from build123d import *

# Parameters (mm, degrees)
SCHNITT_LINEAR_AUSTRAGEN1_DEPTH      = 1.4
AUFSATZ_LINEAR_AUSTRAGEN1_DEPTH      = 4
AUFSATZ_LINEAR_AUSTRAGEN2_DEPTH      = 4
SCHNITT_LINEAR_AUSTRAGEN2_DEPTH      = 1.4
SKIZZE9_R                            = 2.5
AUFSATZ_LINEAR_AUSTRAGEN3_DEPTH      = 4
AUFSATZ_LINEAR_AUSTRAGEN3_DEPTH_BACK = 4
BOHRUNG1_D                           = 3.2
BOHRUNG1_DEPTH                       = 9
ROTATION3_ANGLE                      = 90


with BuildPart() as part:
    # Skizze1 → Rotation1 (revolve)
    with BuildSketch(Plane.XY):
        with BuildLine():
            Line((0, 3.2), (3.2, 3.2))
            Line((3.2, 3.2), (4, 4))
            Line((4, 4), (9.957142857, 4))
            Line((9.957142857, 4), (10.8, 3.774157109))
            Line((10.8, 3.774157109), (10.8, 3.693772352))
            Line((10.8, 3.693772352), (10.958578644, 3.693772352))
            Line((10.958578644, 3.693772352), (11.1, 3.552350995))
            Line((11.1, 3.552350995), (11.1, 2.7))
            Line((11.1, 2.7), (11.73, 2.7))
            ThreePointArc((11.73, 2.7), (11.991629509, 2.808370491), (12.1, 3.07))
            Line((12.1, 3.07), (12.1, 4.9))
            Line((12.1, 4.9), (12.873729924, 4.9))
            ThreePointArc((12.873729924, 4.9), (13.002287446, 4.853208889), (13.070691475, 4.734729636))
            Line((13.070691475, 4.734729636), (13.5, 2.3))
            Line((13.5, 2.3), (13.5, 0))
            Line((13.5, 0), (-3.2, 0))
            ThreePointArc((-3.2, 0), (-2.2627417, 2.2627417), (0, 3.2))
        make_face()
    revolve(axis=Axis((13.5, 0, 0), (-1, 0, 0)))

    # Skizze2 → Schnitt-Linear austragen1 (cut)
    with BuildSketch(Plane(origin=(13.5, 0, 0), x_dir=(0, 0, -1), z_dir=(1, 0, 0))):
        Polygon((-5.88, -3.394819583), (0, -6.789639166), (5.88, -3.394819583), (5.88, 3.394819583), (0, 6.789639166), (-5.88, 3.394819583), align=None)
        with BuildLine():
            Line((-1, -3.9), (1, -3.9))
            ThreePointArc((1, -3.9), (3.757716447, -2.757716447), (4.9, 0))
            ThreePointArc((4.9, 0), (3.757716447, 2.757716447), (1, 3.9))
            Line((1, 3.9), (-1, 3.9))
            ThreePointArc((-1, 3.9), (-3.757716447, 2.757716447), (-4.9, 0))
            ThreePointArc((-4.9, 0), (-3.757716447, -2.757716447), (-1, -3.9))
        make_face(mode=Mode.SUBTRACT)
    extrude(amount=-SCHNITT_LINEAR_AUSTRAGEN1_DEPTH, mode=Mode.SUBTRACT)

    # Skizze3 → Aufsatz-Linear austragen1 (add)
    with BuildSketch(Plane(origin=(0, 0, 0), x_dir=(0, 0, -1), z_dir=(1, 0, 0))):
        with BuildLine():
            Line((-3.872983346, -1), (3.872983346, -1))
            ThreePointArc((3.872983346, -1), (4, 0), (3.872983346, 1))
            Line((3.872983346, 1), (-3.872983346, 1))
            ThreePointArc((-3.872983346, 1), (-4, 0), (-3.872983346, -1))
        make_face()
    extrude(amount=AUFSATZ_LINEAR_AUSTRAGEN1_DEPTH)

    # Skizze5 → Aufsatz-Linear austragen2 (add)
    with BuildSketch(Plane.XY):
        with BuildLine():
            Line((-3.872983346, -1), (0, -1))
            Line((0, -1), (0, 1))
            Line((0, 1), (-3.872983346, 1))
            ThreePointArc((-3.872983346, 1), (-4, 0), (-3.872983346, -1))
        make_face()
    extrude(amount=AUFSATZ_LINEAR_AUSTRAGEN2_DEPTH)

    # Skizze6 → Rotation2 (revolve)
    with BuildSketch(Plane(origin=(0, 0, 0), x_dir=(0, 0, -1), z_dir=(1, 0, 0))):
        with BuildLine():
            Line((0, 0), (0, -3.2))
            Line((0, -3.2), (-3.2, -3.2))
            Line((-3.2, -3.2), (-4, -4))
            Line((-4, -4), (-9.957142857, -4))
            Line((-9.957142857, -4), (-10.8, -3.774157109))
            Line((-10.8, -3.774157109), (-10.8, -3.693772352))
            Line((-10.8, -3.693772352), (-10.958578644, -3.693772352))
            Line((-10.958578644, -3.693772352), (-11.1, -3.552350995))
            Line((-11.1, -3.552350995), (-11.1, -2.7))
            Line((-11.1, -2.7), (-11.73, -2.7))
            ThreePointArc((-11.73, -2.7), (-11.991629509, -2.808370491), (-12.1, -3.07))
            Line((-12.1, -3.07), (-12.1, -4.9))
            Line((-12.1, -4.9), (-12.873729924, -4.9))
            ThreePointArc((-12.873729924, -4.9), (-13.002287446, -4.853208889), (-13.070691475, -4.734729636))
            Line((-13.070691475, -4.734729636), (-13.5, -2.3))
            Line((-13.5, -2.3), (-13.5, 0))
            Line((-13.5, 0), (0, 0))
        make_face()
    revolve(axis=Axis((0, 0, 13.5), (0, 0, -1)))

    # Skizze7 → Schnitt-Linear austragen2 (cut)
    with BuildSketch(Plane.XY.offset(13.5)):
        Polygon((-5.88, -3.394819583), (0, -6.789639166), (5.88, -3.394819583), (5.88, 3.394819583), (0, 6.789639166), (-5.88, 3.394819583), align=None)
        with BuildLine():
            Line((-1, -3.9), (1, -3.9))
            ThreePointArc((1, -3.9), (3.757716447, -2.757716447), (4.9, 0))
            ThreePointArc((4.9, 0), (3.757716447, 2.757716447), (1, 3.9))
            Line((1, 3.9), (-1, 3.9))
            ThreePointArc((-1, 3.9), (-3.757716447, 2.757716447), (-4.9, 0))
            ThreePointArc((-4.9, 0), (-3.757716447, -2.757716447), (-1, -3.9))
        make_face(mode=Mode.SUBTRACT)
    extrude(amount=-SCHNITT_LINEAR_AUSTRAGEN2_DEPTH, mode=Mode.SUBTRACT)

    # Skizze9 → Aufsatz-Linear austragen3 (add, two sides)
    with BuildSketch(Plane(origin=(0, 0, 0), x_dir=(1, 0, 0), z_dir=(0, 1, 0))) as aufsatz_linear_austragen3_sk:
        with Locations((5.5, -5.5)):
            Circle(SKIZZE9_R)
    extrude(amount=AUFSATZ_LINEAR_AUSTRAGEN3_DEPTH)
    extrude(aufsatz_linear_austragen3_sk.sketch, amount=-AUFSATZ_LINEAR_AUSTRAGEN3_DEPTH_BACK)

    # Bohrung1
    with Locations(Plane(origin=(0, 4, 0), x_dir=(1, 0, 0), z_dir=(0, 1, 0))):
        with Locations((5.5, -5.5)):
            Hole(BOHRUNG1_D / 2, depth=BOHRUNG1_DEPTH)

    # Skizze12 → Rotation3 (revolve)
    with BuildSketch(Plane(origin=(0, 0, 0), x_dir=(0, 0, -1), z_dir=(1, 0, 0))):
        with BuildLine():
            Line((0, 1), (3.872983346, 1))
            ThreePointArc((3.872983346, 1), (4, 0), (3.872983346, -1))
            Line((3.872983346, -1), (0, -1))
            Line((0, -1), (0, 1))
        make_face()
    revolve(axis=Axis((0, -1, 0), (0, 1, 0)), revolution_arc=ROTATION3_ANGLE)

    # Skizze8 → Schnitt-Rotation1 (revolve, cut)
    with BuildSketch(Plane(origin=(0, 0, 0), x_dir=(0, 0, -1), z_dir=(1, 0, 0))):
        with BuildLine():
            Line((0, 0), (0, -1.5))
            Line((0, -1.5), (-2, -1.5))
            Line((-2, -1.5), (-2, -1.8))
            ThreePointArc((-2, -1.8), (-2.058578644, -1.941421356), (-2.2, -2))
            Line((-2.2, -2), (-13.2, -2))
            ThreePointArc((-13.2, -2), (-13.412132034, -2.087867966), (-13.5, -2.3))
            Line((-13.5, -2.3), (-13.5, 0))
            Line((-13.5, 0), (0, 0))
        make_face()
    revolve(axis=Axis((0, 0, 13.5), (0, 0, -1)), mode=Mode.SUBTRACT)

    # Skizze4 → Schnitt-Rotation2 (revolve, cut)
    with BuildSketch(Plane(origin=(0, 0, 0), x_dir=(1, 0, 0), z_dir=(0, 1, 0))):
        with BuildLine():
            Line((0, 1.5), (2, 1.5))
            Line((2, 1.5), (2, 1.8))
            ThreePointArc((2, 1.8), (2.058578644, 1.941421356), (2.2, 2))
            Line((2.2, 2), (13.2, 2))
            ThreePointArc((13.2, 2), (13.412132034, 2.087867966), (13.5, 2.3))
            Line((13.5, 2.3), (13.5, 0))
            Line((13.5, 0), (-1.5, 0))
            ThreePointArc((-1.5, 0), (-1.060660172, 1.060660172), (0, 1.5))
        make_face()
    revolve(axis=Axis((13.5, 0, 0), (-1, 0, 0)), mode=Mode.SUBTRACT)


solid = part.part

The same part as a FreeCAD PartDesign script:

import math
import FreeCAD as App
import Part
import Sketcher
Q = App.Units.Quantity

doc = App.newDocument("Part")
body = doc.addObject("PartDesign::Body", "Body")

# Sketch on XY plane
sketch1 = body.newObject("Sketcher::SketchObject", "Sketch")
sketch1.AttachmentSupport = (doc.getObject("XY_Plane"), [""])
sketch1.MapMode = "FlatFace"
sketch1.addGeometry(Part.LineSegment(App.Vector(3.2, 3.2, 0), App.Vector(0, 3.2, 0)), False)
sketch1.addGeometry(Part.ArcOfCircle(Part.Circle(App.Vector(0, 0, 0), App.Vector(0, 0, 1), 3.2), math.radians(90), math.radians(180)), False)
sketch1.addGeometry(Part.LineSegment(App.Vector(-3.2, 0, 0), App.Vector(13.5, 0, 0)), False)
sketch1.addGeometry(Part.LineSegment(App.Vector(13.5, 0, 0), App.Vector(13.5, 2.3, 0)), False)
sketch1.addGeometry(Part.LineSegment(App.Vector(13.5, 2.3, 0), App.Vector(13.07, 4.73, 0)), False)
sketch1.addGeometry(Part.ArcOfCircle(Part.Circle(App.Vector(12.87, 4.7, 0), App.Vector(0, 0, 1), 0.2), math.radians(10), math.radians(90)), False)
sketch1.addGeometry(Part.LineSegment(App.Vector(12.87, 4.9, 0), App.Vector(12.1, 4.9, 0)), False)
sketch1.addGeometry(Part.LineSegment(App.Vector(12.1, 4.9, 0), App.Vector(12.1, 3.07, 0)), False)
sketch1.addGeometry(Part.ArcOfCircle(Part.Circle(App.Vector(11.73, 3.07, 0), App.Vector(0, 0, 1), 0.37), math.radians(-90), math.radians(0)), False)
sketch1.addGeometry(Part.LineSegment(App.Vector(11.73, 2.7, 0), App.Vector(11.1, 2.7, 0)), False)
sketch1.addGeometry(Part.LineSegment(App.Vector(11.1, 2.7, 0), App.Vector(11.1, 3.55, 0)), False)
sketch1.addGeometry(Part.LineSegment(App.Vector(11.1, 3.55, 0), App.Vector(10.96, 3.69, 0)), False)
sketch1.addGeometry(Part.LineSegment(App.Vector(10.96, 3.69, 0), App.Vector(10.8, 3.69, 0)), False)
sketch1.addGeometry(Part.LineSegment(App.Vector(10.8, 3.69, 0), App.Vector(10.8, 3.77, 0)), False)
sketch1.addGeometry(Part.LineSegment(App.Vector(10.8, 3.77, 0), App.Vector(9.96, 4, 0)), False)
sketch1.addGeometry(Part.LineSegment(App.Vector(9.96, 4, 0), App.Vector(4, 4, 0)), False)
sketch1.addGeometry(Part.LineSegment(App.Vector(4, 4, 0), App.Vector(3.2, 3.2, 0)), False)
sketch1.addConstraint(Sketcher.Constraint("Tangent", 0, 2, 1, 1))
sketch1.addConstraint(Sketcher.Constraint("Coincident", 1, 2, 2, 1))
sketch1.addConstraint(Sketcher.Constraint("Coincident", 2, 2, 3, 1))
sketch1.addConstraint(Sketcher.Constraint("Coincident", 3, 2, 4, 1))
sketch1.addConstraint(Sketcher.Constraint("Tangent", 4, 2, 5, 1))
sketch1.addConstraint(Sketcher.Constraint("Tangent", 5, 2, 6, 1))
sketch1.addConstraint(Sketcher.Constraint("Coincident", 6, 2, 7, 1))
sketch1.addConstraint(Sketcher.Constraint("Tangent", 7, 2, 8, 2))
sketch1.addConstraint(Sketcher.Constraint("Tangent", 8, 1, 9, 1))
sketch1.addConstraint(Sketcher.Constraint("Coincident", 9, 2, 10, 1))
sketch1.addConstraint(Sketcher.Constraint("Coincident", 10, 2, 11, 1))
sketch1.addConstraint(Sketcher.Constraint("Coincident", 11, 2, 12, 1))
sketch1.addConstraint(Sketcher.Constraint("Coincident", 12, 2, 13, 1))
sketch1.addConstraint(Sketcher.Constraint("Coincident", 13, 2, 14, 1))
sketch1.addConstraint(Sketcher.Constraint("Coincident", 14, 2, 15, 1))
sketch1.addConstraint(Sketcher.Constraint("Coincident", 15, 2, 16, 1))
sketch1.addConstraint(Sketcher.Constraint("Coincident", 16, 2, 0, 1))
sketch1.addConstraint(Sketcher.Constraint("Horizontal", 0))
sketch1.addConstraint(Sketcher.Constraint("Horizontal", 2))
sketch1.addConstraint(Sketcher.Constraint("Vertical", 3))
sketch1.addConstraint(Sketcher.Constraint("Horizontal", 6))
sketch1.addConstraint(Sketcher.Constraint("Vertical", 7))
sketch1.addConstraint(Sketcher.Constraint("Horizontal", 9))
sketch1.addConstraint(Sketcher.Constraint("Vertical", 10))
sketch1.addConstraint(Sketcher.Constraint("Horizontal", 12))
sketch1.addConstraint(Sketcher.Constraint("Vertical", 13))
sketch1.addConstraint(Sketcher.Constraint("Horizontal", 15))
sketch1.addConstraint(Sketcher.Constraint("Coincident", 1, 3, -1, 1))
sketch1.addConstraint(Sketcher.Constraint("PointOnObject", 1, 2, -1))
sketch1.addConstraint(Sketcher.Constraint("Perpendicular", 11, 16))
sketch1.addConstraint(Sketcher.Constraint("Radius", 1, 3.2))
sketch1.addConstraint(Sketcher.Constraint("Radius", 5, 0.2))
sketch1.addConstraint(Sketcher.Constraint("Angle", 4, Q("100 deg")))
sketch1.addConstraint(Sketcher.Constraint("Angle", 11, Q("135 deg")))
sketch1.addConstraint(Sketcher.Constraint("Angle", 14, Q("165 deg")))
sketch1.addConstraint(Sketcher.Constraint("Radius", 8, 0.37))
sketch1.addConstraint(Sketcher.Constraint("DistanceX", 0, 2, 0, 1, 3.2))
sketch1.addConstraint(Sketcher.Constraint("DistanceX", 2, 1, 2, 2, 16.7))
sketch1.addConstraint(Sketcher.Constraint("DistanceY", 3, 1, 3, 2, 2.3))
sketch1.addConstraint(Sketcher.Constraint("DistanceY", -1, 1, 14, 2, 4.0))
sketch1.addConstraint(Sketcher.Constraint("DistanceY", 8, 1, 5, 3, 2.0))
sketch1.addConstraint(Sketcher.Constraint("DistanceX", 9, 2, 7, 2, 1.0))
sketch1.addConstraint(Sketcher.Constraint("Distance", 11, 0.2))
sketch1.addConstraint(Sketcher.Constraint("DistanceY", -1, 1, 5, 3, 4.7))
sketch1.addConstraint(Sketcher.Constraint("DistanceX", -1, 1, 6, 2, 12.1))
sketch1.addConstraint(Sketcher.Constraint("DistanceX", -1, 1, 12, 2, 10.8))
sketch1.addConstraint(Sketcher.Constraint("DistanceY", 10, 1, 10, 2, 0.852351))
sketch1.addConstraint(Sketcher.Constraint("Distance", 14, 0.87259))
revolution = body.newObject("PartDesign::Revolution", "Revolution")
revolution.Profile = sketch1
revolution.ReferenceAxis = (sketch1, ["H_Axis"])
revolution.Angle = 360

# Sketch on YZ plane
sketch2 = body.newObject("Sketcher::SketchObject", "Sketch001")
sketch2.AttachmentSupport = (doc.getObject("YZ_Plane"), [""])
sketch2.MapMode = "FlatFace"
sketch2.AttachmentOffset = App.Placement(App.Vector(0, 0, 13.5), App.Rotation())
sketch2.addGeometry(Part.LineSegment(App.Vector(-3.4, 5.9, 0), App.Vector(-6.8, 0, 0)), False)
sketch2.addGeometry(Part.LineSegment(App.Vector(-6.8, 0, 0), App.Vector(-3.4, -5.9, 0)), False)
sketch2.addGeometry(Part.LineSegment(App.Vector(-3.4, -5.9, 0), App.Vector(3.4, -5.9, 0)), False)
sketch2.addGeometry(Part.LineSegment(App.Vector(3.4, -5.9, 0), App.Vector(6.8, 0, 0)), False)
sketch2.addGeometry(Part.LineSegment(App.Vector(6.8, 0, 0), App.Vector(3.4, 5.9, 0)), False)
sketch2.addGeometry(Part.LineSegment(App.Vector(3.4, 5.9, 0), App.Vector(-3.4, 5.9, 0)), False)
sketch2.addGeometry(Part.LineSegment(App.Vector(-3.9, -1, 0), App.Vector(-3.9, 1, 0)), False)
sketch2.addGeometry(Part.ArcOfCircle(Part.Circle(App.Vector(0, 1, 0), App.Vector(0, 0, 1), 3.9), math.radians(90), math.radians(180)), False)
sketch2.addGeometry(Part.ArcOfCircle(Part.Circle(App.Vector(0, 1, 0), App.Vector(0, 0, 1), 3.9), math.radians(0), math.radians(90)), False)
sketch2.addGeometry(Part.LineSegment(App.Vector(3.9, 1, 0), App.Vector(3.9, -1, 0)), False)
sketch2.addGeometry(Part.ArcOfCircle(Part.Circle(App.Vector(0, -1, 0), App.Vector(0, 0, 1), 3.9), math.radians(-90), math.radians(0)), False)
sketch2.addGeometry(Part.ArcOfCircle(Part.Circle(App.Vector(0, -1, 0), App.Vector(0, 0, 1), 3.9), math.radians(180), math.radians(270)), False)
sketch2.addConstraint(Sketcher.Constraint("Coincident", 0, 2, 1, 1))
sketch2.addConstraint(Sketcher.Constraint("Coincident", 1, 2, 2, 1))
sketch2.addConstraint(Sketcher.Constraint("Coincident", 2, 2, 3, 1))
sketch2.addConstraint(Sketcher.Constraint("Coincident", 3, 2, 4, 1))
sketch2.addConstraint(Sketcher.Constraint("Coincident", 4, 2, 5, 1))
sketch2.addConstraint(Sketcher.Constraint("Coincident", 5, 2, 0, 1))
sketch2.addConstraint(Sketcher.Constraint("Tangent", 6, 2, 7, 2))
sketch2.addConstraint(Sketcher.Constraint("Tangent", 7, 1, 8, 2))
sketch2.addConstraint(Sketcher.Constraint("Tangent", 8, 1, 9, 1))
sketch2.addConstraint(Sketcher.Constraint("Tangent", 9, 2, 10, 2))
sketch2.addConstraint(Sketcher.Constraint("Tangent", 10, 1, 11, 2))
sketch2.addConstraint(Sketcher.Constraint("Tangent", 11, 1, 6, 1))
sketch2.addConstraint(Sketcher.Constraint("Horizontal", 2))
sketch2.addConstraint(Sketcher.Constraint("Horizontal", 5))
sketch2.addConstraint(Sketcher.Constraint("Vertical", 6))
sketch2.addConstraint(Sketcher.Constraint("Vertical", 9))
sketch2.addConstraint(Sketcher.Constraint("Equal", 7, 8))
sketch2.addConstraint(Sketcher.Constraint("Equal", 8, 10))
sketch2.addConstraint(Sketcher.Constraint("Symmetric", 7, 3, 10, 3, -1, 1))
sketch2.addConstraint(Sketcher.Constraint("Symmetric", 0, 2, 3, 2, -1, 1))
sketch2.addConstraint(Sketcher.Constraint("Symmetric", 1, 2, 4, 2, -1, 1))
sketch2.addConstraint(Sketcher.Constraint("PointOnObject", 0, 2, -1))
sketch2.addConstraint(Sketcher.Constraint("PointOnObject", 7, 1, -2))
sketch2.addConstraint(Sketcher.Constraint("PointOnObject", 10, 1, -2))
sketch2.addConstraint(Sketcher.Constraint("Parallel", 0, 3))
sketch2.addConstraint(Sketcher.Constraint("Vertical", 2, 2, 4, 2))
sketch2.addConstraint(Sketcher.Constraint("Radius", 7, 3.9))
sketch2.addConstraint(Sketcher.Constraint("DistanceY", 6, 1, 6, 2, 2.0))
sketch2.addConstraint(Sketcher.Constraint("Angle", 0, Q("-120 deg")))
sketch2.addConstraint(Sketcher.Constraint("DistanceY", 1, 2, -1, 1, 5.88))
sketch2.addConstraint(Sketcher.Constraint("DistanceX", 2, 1, 2, 2, 6.789639))
pocket1 = body.newObject("PartDesign::Pocket", "Pocket")
pocket1.Profile = sketch2
pocket1.Length = 1.4

# Sketch on YZ plane
sketch3 = body.newObject("Sketcher::SketchObject", "Sketch002")
sketch3.AttachmentSupport = (doc.getObject("YZ_Plane"), [""])
sketch3.MapMode = "FlatFace"
sketch3.addGeometry(Part.LineSegment(App.Vector(-1, 3.9, 0), App.Vector(-1, -3.9, 0)), False)
sketch3.addGeometry(Part.ArcOfCircle(Part.Circle(App.Vector(0, 0, 0), App.Vector(0, 0, 1), 4), math.radians(-104), math.radians(-76)), False)
sketch3.addGeometry(Part.LineSegment(App.Vector(1, -3.9, 0), App.Vector(1, 3.9, 0)), False)
sketch3.addGeometry(Part.ArcOfCircle(Part.Circle(App.Vector(0, 0, 0), App.Vector(0, 0, 1), 4), math.radians(76), math.radians(104)), False)
sketch3.addConstraint(Sketcher.Constraint("Coincident", 0, 2, 1, 1))
sketch3.addConstraint(Sketcher.Constraint("Coincident", 1, 2, 2, 1))
sketch3.addConstraint(Sketcher.Constraint("Coincident", 2, 2, 3, 1))
sketch3.addConstraint(Sketcher.Constraint("Coincident", 3, 2, 0, 1))
sketch3.addConstraint(Sketcher.Constraint("Vertical", 0))
sketch3.addConstraint(Sketcher.Constraint("Vertical", 2))
sketch3.addConstraint(Sketcher.Constraint("Coincident", 1, 3, -1, 1))
sketch3.addConstraint(Sketcher.Constraint("Coincident", 3, 3, -1, 1))
sketch3.addConstraint(Sketcher.Constraint("Equal", 1, 3))
sketch3.addConstraint(Sketcher.Constraint("Horizontal", 0, 2, 1, 2))
sketch3.addConstraint(Sketcher.Constraint("Radius", 1, 4.0))
sketch3.addConstraint(Sketcher.Constraint("DistanceX", 0, 2, -1, 1, 1.0))
pad1 = body.newObject("PartDesign::Pad", "Pad")
pad1.Profile = sketch3
pad1.Length = 4

# Sketch on XY plane
sketch4 = body.newObject("Sketcher::SketchObject", "Sketch003")
sketch4.AttachmentSupport = (doc.getObject("XY_Plane"), [""])
sketch4.MapMode = "FlatFace"
sketch4.addGeometry(Part.LineSegment(App.Vector(-3.9, -1, 0), App.Vector(0, -1, 0)), False)
sketch4.addGeometry(Part.LineSegment(App.Vector(0, -1, 0), App.Vector(0, 1, 0)), False)
sketch4.addGeometry(Part.LineSegment(App.Vector(0, 1, 0), App.Vector(-3.9, 1, 0)), False)
sketch4.addGeometry(Part.ArcOfCircle(Part.Circle(App.Vector(0, 0, 0), App.Vector(0, 0, 1), 4), math.radians(166), math.radians(194)), False)
sketch4.addConstraint(Sketcher.Constraint("Coincident", 0, 2, 1, 1))
sketch4.addConstraint(Sketcher.Constraint("Coincident", 1, 2, 2, 1))
sketch4.addConstraint(Sketcher.Constraint("Coincident", 2, 2, 3, 1))
sketch4.addConstraint(Sketcher.Constraint("Coincident", 3, 2, 0, 1))
sketch4.addConstraint(Sketcher.Constraint("Horizontal", 0))
sketch4.addConstraint(Sketcher.Constraint("Vertical", 1))
sketch4.addConstraint(Sketcher.Constraint("Horizontal", 2))
sketch4.addConstraint(Sketcher.Constraint("Coincident", 3, 3, -1, 1))
sketch4.addConstraint(Sketcher.Constraint("Symmetric", 0, 2, 1, 2, -1, 1))
sketch4.addConstraint(Sketcher.Constraint("Radius", 3, 4.0))
sketch4.addConstraint(Sketcher.Constraint("DistanceY", 1, 1, 1, 2, 2.0))
pad2 = body.newObject("PartDesign::Pad", "Pad001")
pad2.Profile = sketch4
pad2.Length = 4

# Sketch on YZ plane
sketch5 = body.newObject("Sketcher::SketchObject", "Sketch004")
sketch5.AttachmentSupport = (doc.getObject("YZ_Plane"), [""])
sketch5.MapMode = "FlatFace"
sketch5.addGeometry(Part.LineSegment(App.Vector(-3.2, 0, 0), App.Vector(0, 0, 0)), False)
sketch5.addGeometry(Part.LineSegment(App.Vector(0, 0, 0), App.Vector(0, 13.5, 0)), False)
sketch5.addGeometry(Part.LineSegment(App.Vector(0, 13.5, 0), App.Vector(-2.3, 13.5, 0)), False)
sketch5.addGeometry(Part.LineSegment(App.Vector(-2.3, 13.5, 0), App.Vector(-4.73, 13.07, 0)), False)
sketch5.addGeometry(Part.ArcOfCircle(Part.Circle(App.Vector(-4.7, 12.87, 0), App.Vector(0, 0, 1), 0.2), math.radians(100), math.radians(180)), False)
sketch5.addGeometry(Part.LineSegment(App.Vector(-4.9, 12.87, 0), App.Vector(-4.9, 12.1, 0)), False)
sketch5.addGeometry(Part.LineSegment(App.Vector(-4.9, 12.1, 0), App.Vector(-3.07, 12.1, 0)), False)
sketch5.addGeometry(Part.ArcOfCircle(Part.Circle(App.Vector(-3.07, 11.73, 0), App.Vector(0, 0, 1), 0.37), math.radians(0), math.radians(90)), False)
sketch5.addGeometry(Part.LineSegment(App.Vector(-2.7, 11.73, 0), App.Vector(-2.7, 11.1, 0)), False)
sketch5.addGeometry(Part.LineSegment(App.Vector(-2.7, 11.1, 0), App.Vector(-3.55, 11.1, 0)), False)
sketch5.addGeometry(Part.LineSegment(App.Vector(-3.55, 11.1, 0), App.Vector(-3.69, 10.96, 0)), False)
sketch5.addGeometry(Part.LineSegment(App.Vector(-3.69, 10.96, 0), App.Vector(-3.69, 10.8, 0)), False)
sketch5.addGeometry(Part.LineSegment(App.Vector(-3.69, 10.8, 0), App.Vector(-3.77, 10.8, 0)), False)
sketch5.addGeometry(Part.LineSegment(App.Vector(-3.77, 10.8, 0), App.Vector(-4, 9.96, 0)), False)
sketch5.addGeometry(Part.LineSegment(App.Vector(-4, 9.96, 0), App.Vector(-4, 4, 0)), False)
sketch5.addGeometry(Part.LineSegment(App.Vector(-4, 4, 0), App.Vector(-3.2, 3.2, 0)), False)
sketch5.addGeometry(Part.LineSegment(App.Vector(-3.2, 3.2, 0), App.Vector(-3.2, 0, 0)), False)
sketch5.addConstraint(Sketcher.Constraint("Coincident", 0, 2, 1, 1))
sketch5.addConstraint(Sketcher.Constraint("Coincident", 1, 2, 2, 1))
sketch5.addConstraint(Sketcher.Constraint("Coincident", 2, 2, 3, 1))
sketch5.addConstraint(Sketcher.Constraint("Tangent", 3, 2, 4, 1))
sketch5.addConstraint(Sketcher.Constraint("Tangent", 4, 2, 5, 1))
sketch5.addConstraint(Sketcher.Constraint("Coincident", 5, 2, 6, 1))
sketch5.addConstraint(Sketcher.Constraint("Tangent", 6, 2, 7, 2))
sketch5.addConstraint(Sketcher.Constraint("Tangent", 7, 1, 8, 1))
sketch5.addConstraint(Sketcher.Constraint("Coincident", 8, 2, 9, 1))
sketch5.addConstraint(Sketcher.Constraint("Coincident", 9, 2, 10, 1))
sketch5.addConstraint(Sketcher.Constraint("Coincident", 10, 2, 11, 1))
sketch5.addConstraint(Sketcher.Constraint("Coincident", 11, 2, 12, 1))
sketch5.addConstraint(Sketcher.Constraint("Coincident", 12, 2, 13, 1))
sketch5.addConstraint(Sketcher.Constraint("Coincident", 13, 2, 14, 1))
sketch5.addConstraint(Sketcher.Constraint("Coincident", 14, 2, 15, 1))
sketch5.addConstraint(Sketcher.Constraint("Coincident", 15, 2, 16, 1))
sketch5.addConstraint(Sketcher.Constraint("Coincident", 16, 2, 0, 1))
sketch5.addConstraint(Sketcher.Constraint("Horizontal", 0))
sketch5.addConstraint(Sketcher.Constraint("Vertical", 1))
sketch5.addConstraint(Sketcher.Constraint("Horizontal", 2))
sketch5.addConstraint(Sketcher.Constraint("Vertical", 5))
sketch5.addConstraint(Sketcher.Constraint("Horizontal", 6))
sketch5.addConstraint(Sketcher.Constraint("Vertical", 8))
sketch5.addConstraint(Sketcher.Constraint("Horizontal", 9))
sketch5.addConstraint(Sketcher.Constraint("Vertical", 11))
sketch5.addConstraint(Sketcher.Constraint("Horizontal", 12))
sketch5.addConstraint(Sketcher.Constraint("Vertical", 14))
sketch5.addConstraint(Sketcher.Constraint("Vertical", 16))
sketch5.addConstraint(Sketcher.Constraint("Coincident", 0, 2, -1, 1))
sketch5.addConstraint(Sketcher.Constraint("Perpendicular", 10, 15))
sketch5.addConstraint(Sketcher.Constraint("Equal", 0, 16))
sketch5.addConstraint(Sketcher.Constraint("Radius", 4, 0.2))
sketch5.addConstraint(Sketcher.Constraint("Angle", 3, Q("-170 deg")))
sketch5.addConstraint(Sketcher.Constraint("Angle", 10, Q("-135 deg")))
sketch5.addConstraint(Sketcher.Constraint("Angle", 13, Q("-105 deg")))
sketch5.addConstraint(Sketcher.Constraint("Radius", 7, 0.37))
sketch5.addConstraint(Sketcher.Constraint("DistanceX", 0, 1, 0, 2, 3.2))
sketch5.addConstraint(Sketcher.Constraint("DistanceX", 2, 2, 2, 1, 2.3))
sketch5.addConstraint(Sketcher.Constraint("DistanceY", 1, 1, 1, 2, 13.5))
sketch5.addConstraint(Sketcher.Constraint("DistanceX", 13, 2, -1, 1, 4.0))
sketch5.addConstraint(Sketcher.Constraint("DistanceX", 4, 3, 7, 1, 2.0))
sketch5.addConstraint(Sketcher.Constraint("DistanceY", 8, 2, 6, 2, 1.0))
sketch5.addConstraint(Sketcher.Constraint("Distance", 10, 0.2))
sketch5.addConstraint(Sketcher.Constraint("DistanceX", 4, 3, -1, 1, 4.7))
sketch5.addConstraint(Sketcher.Constraint("DistanceY", -1, 1, 5, 2, 12.1))
sketch5.addConstraint(Sketcher.Constraint("DistanceY", -1, 1, 11, 2, 10.8))
sketch5.addConstraint(Sketcher.Constraint("DistanceX", 9, 2, 9, 1, 0.852351))
sketch5.addConstraint(Sketcher.Constraint("Distance", 13, 0.87259))
revolution2 = body.newObject("PartDesign::Revolution", "Revolution001")
revolution2.Profile = sketch5
revolution2.ReferenceAxis = (sketch5, ["V_Axis"])
revolution2.Angle = 360

# Sketch on XY plane
sketch6 = body.newObject("Sketcher::SketchObject", "Sketch005")
sketch6.AttachmentSupport = (doc.getObject("XY_Plane"), [""])
sketch6.MapMode = "FlatFace"
sketch6.AttachmentOffset = App.Placement(App.Vector(0, 0, 13.5), App.Rotation())
sketch6.addGeometry(Part.LineSegment(App.Vector(-5.9, -3.4, 0), App.Vector(0, -6.8, 0)), False)
sketch6.addGeometry(Part.LineSegment(App.Vector(0, -6.8, 0), App.Vector(5.9, -3.4, 0)), False)
sketch6.addGeometry(Part.LineSegment(App.Vector(5.9, -3.4, 0), App.Vector(5.9, 3.4, 0)), False)
sketch6.addGeometry(Part.LineSegment(App.Vector(5.9, 3.4, 0), App.Vector(0, 6.8, 0)), False)
sketch6.addGeometry(Part.LineSegment(App.Vector(0, 6.8, 0), App.Vector(-5.9, 3.4, 0)), False)
sketch6.addGeometry(Part.LineSegment(App.Vector(-5.9, 3.4, 0), App.Vector(-5.9, -3.4, 0)), False)
sketch6.addGeometry(Part.LineSegment(App.Vector(1, -3.9, 0), App.Vector(-1, -3.9, 0)), False)
sketch6.addGeometry(Part.ArcOfCircle(Part.Circle(App.Vector(-1, 0, 0), App.Vector(0, 0, 1), 3.9), math.radians(180), math.radians(270)), False)
sketch6.addGeometry(Part.ArcOfCircle(Part.Circle(App.Vector(-1, 0, 0), App.Vector(0, 0, 1), 3.9), math.radians(90), math.radians(180)), False)
sketch6.addGeometry(Part.LineSegment(App.Vector(-1, 3.9, 0), App.Vector(1, 3.9, 0)), False)
sketch6.addGeometry(Part.ArcOfCircle(Part.Circle(App.Vector(1, 0, 0), App.Vector(0, 0, 1), 3.9), math.radians(0), math.radians(90)), False)
sketch6.addGeometry(Part.ArcOfCircle(Part.Circle(App.Vector(1, 0, 0), App.Vector(0, 0, 1), 3.9), math.radians(-90), math.radians(0)), False)
sketch6.addConstraint(Sketcher.Constraint("Coincident", 0, 2, 1, 1))
sketch6.addConstraint(Sketcher.Constraint("Coincident", 1, 2, 2, 1))
sketch6.addConstraint(Sketcher.Constraint("Coincident", 2, 2, 3, 1))
sketch6.addConstraint(Sketcher.Constraint("Coincident", 3, 2, 4, 1))
sketch6.addConstraint(Sketcher.Constraint("Coincident", 4, 2, 5, 1))
sketch6.addConstraint(Sketcher.Constraint("Coincident", 5, 2, 0, 1))
sketch6.addConstraint(Sketcher.Constraint("Tangent", 6, 2, 7, 2))
sketch6.addConstraint(Sketcher.Constraint("Tangent", 7, 1, 8, 2))
sketch6.addConstraint(Sketcher.Constraint("Tangent", 8, 1, 9, 1))
sketch6.addConstraint(Sketcher.Constraint("Tangent", 9, 2, 10, 2))
sketch6.addConstraint(Sketcher.Constraint("Tangent", 10, 1, 11, 2))
sketch6.addConstraint(Sketcher.Constraint("Tangent", 11, 1, 6, 1))
sketch6.addConstraint(Sketcher.Constraint("Vertical", 2))
sketch6.addConstraint(Sketcher.Constraint("Vertical", 5))
sketch6.addConstraint(Sketcher.Constraint("Horizontal", 6))
sketch6.addConstraint(Sketcher.Constraint("Horizontal", 9))
sketch6.addConstraint(Sketcher.Constraint("Equal", 7, 8))
sketch6.addConstraint(Sketcher.Constraint("Equal", 8, 10))
sketch6.addConstraint(Sketcher.Constraint("Symmetric", 7, 3, 10, 3, -1, 1))
sketch6.addConstraint(Sketcher.Constraint("Symmetric", 0, 2, 3, 2, -1, 1))
sketch6.addConstraint(Sketcher.Constraint("Symmetric", 1, 2, 4, 2, -1, 1))
sketch6.addConstraint(Sketcher.Constraint("PointOnObject", 0, 2, -2))
sketch6.addConstraint(Sketcher.Constraint("PointOnObject", 7, 1, -1))
sketch6.addConstraint(Sketcher.Constraint("PointOnObject", 10, 1, -1))
sketch6.addConstraint(Sketcher.Constraint("Parallel", 0, 3))
sketch6.addConstraint(Sketcher.Constraint("Horizontal", 2, 2, 4, 2))
sketch6.addConstraint(Sketcher.Constraint("Radius", 7, 3.9))
sketch6.addConstraint(Sketcher.Constraint("DistanceX", 6, 2, 6, 1, 2.0))
sketch6.addConstraint(Sketcher.Constraint("Angle", 0, Q("-30 deg")))
sketch6.addConstraint(Sketcher.Constraint("DistanceX", -1, 1, 1, 2, 5.88))
sketch6.addConstraint(Sketcher.Constraint("DistanceY", 2, 1, 2, 2, 6.789639))
pocket2 = body.newObject("PartDesign::Pocket", "Pocket001")
pocket2.Profile = sketch6
pocket2.Length = 1.4

# Sketch on XZ plane
sketch7 = body.newObject("Sketcher::SketchObject", "Sketch006")
sketch7.AttachmentSupport = (doc.getObject("XZ_Plane"), [""])
sketch7.MapMode = "FlatFace"
sketch7.addGeometry(Part.Circle(App.Vector(5.5, 5.5, 0), App.Vector(0, 0, 1), 2.5), False)
sketch7.addConstraint(Sketcher.Constraint("Diameter", 0, 5.0))
sketch7.addConstraint(Sketcher.Constraint("DistanceX", -1, 1, 0, 3, 5.5))
sketch7.addConstraint(Sketcher.Constraint("DistanceY", -1, 1, 0, 3, 5.5))
pad3 = body.newObject("PartDesign::Pad", "Pad002")
pad3.Profile = sketch7
pad3.Type = "TwoLengths"
pad3.Length = 4
pad3.Length2 = 4
pad3.Reversed = True

# Sketch on XZ plane
sketch8 = body.newObject("Sketcher::SketchObject", "Sketch007")
sketch8.AttachmentSupport = (doc.getObject("XZ_Plane"), [""])
sketch8.MapMode = "FlatFace"
sketch8.AttachmentOffset = App.Placement(App.Vector(0, 0, -4), App.Rotation())
sketch8.addGeometry(Part.Circle(App.Vector(5.5, 5.5, 0), App.Vector(0, 0, 1), 1.6), False)
sketch8.addConstraint(Sketcher.Constraint("Diameter", 0, 3.2))
sketch8.addConstraint(Sketcher.Constraint("DistanceX", -1, 1, 0, 3, 5.5))
sketch8.addConstraint(Sketcher.Constraint("DistanceY", -1, 1, 0, 3, 5.5))
doc.recompute()
hole = body.newObject("PartDesign::Hole", "Hole")
hole.Profile = sketch8
hole.ThreadType = "None"
hole.Diameter = 3.2
hole.DepthType = "Dimension"
hole.Depth = 9
hole.DrillPoint = "Flat"
hole.Reversed = True

# Sketch on YZ plane
sketch9 = body.newObject("Sketcher::SketchObject", "Sketch008")
sketch9.AttachmentSupport = (doc.getObject("YZ_Plane"), [""])
sketch9.MapMode = "FlatFace"
sketch9.addGeometry(Part.LineSegment(App.Vector(1, -3.9, 0), App.Vector(1, 0, 0)), False)
sketch9.addGeometry(Part.LineSegment(App.Vector(1, 0, 0), App.Vector(-1, 0, 0)), False)
sketch9.addGeometry(Part.LineSegment(App.Vector(-1, 0, 0), App.Vector(-1, -3.9, 0)), False)
sketch9.addGeometry(Part.ArcOfCircle(Part.Circle(App.Vector(0, 0, 0), App.Vector(0, 0, 1), 4), math.radians(-104), math.radians(-76)), False)
sketch9.addConstraint(Sketcher.Constraint("Coincident", 0, 2, 1, 1))
sketch9.addConstraint(Sketcher.Constraint("Coincident", 1, 2, 2, 1))
sketch9.addConstraint(Sketcher.Constraint("Coincident", 2, 2, 3, 1))
sketch9.addConstraint(Sketcher.Constraint("Coincident", 3, 2, 0, 1))
sketch9.addConstraint(Sketcher.Constraint("Vertical", 0))
sketch9.addConstraint(Sketcher.Constraint("Horizontal", 1))
sketch9.addConstraint(Sketcher.Constraint("Vertical", 2))
sketch9.addConstraint(Sketcher.Constraint("Coincident", 3, 3, -1, 1))
sketch9.addConstraint(Sketcher.Constraint("Symmetric", 0, 2, 1, 2, -1, 1))
sketch9.addConstraint(Sketcher.Constraint("Radius", 3, 4.0))
sketch9.addConstraint(Sketcher.Constraint("DistanceX", 1, 2, 1, 1, 2.0))
revolution3 = body.newObject("PartDesign::Revolution", "Revolution002")
revolution3.Profile = sketch9
revolution3.ReferenceAxis = (sketch9, ["H_Axis"])
revolution3.Angle = 90

# Sketch on YZ plane
sketch10 = body.newObject("Sketcher::SketchObject", "Sketch009")
sketch10.AttachmentSupport = (doc.getObject("YZ_Plane"), [""])
sketch10.MapMode = "FlatFace"
sketch10.addGeometry(Part.LineSegment(App.Vector(-1.5, 0, 0), App.Vector(0, 0, 0)), False)
sketch10.addGeometry(Part.LineSegment(App.Vector(0, 0, 0), App.Vector(0, 13.5, 0)), False)
sketch10.addGeometry(Part.LineSegment(App.Vector(0, 13.5, 0), App.Vector(-2.3, 13.5, 0)), False)
sketch10.addGeometry(Part.ArcOfCircle(Part.Circle(App.Vector(-2.3, 13.2, 0), App.Vector(0, 0, 1), 0.3), math.radians(0), math.radians(90)), False)
sketch10.addGeometry(Part.LineSegment(App.Vector(-2, 13.2, 0), App.Vector(-2, 2.2, 0)), False)
sketch10.addGeometry(Part.ArcOfCircle(Part.Circle(App.Vector(-1.8, 2.2, 0), App.Vector(0, 0, 1), 0.2), math.radians(-180), math.radians(-90)), False)
sketch10.addGeometry(Part.LineSegment(App.Vector(-1.8, 2, 0), App.Vector(-1.5, 2, 0)), False)
sketch10.addGeometry(Part.LineSegment(App.Vector(-1.5, 2, 0), App.Vector(-1.5, 0, 0)), False)
sketch10.addConstraint(Sketcher.Constraint("Coincident", 0, 2, 1, 1))
sketch10.addConstraint(Sketcher.Constraint("Coincident", 1, 2, 2, 1))
sketch10.addConstraint(Sketcher.Constraint("Tangent", 2, 2, 3, 2))
sketch10.addConstraint(Sketcher.Constraint("Tangent", 3, 1, 4, 1))
sketch10.addConstraint(Sketcher.Constraint("Tangent", 4, 2, 5, 1))
sketch10.addConstraint(Sketcher.Constraint("Tangent", 5, 2, 6, 1))
sketch10.addConstraint(Sketcher.Constraint("Coincident", 6, 2, 7, 1))
sketch10.addConstraint(Sketcher.Constraint("Coincident", 7, 2, 0, 1))
sketch10.addConstraint(Sketcher.Constraint("Horizontal", 0))
sketch10.addConstraint(Sketcher.Constraint("Vertical", 1))
sketch10.addConstraint(Sketcher.Constraint("Horizontal", 2))
sketch10.addConstraint(Sketcher.Constraint("Vertical", 4))
sketch10.addConstraint(Sketcher.Constraint("Horizontal", 6))
sketch10.addConstraint(Sketcher.Constraint("Vertical", 7))
sketch10.addConstraint(Sketcher.Constraint("Coincident", 0, 2, -1, 1))
sketch10.addConstraint(Sketcher.Constraint("Radius", 3, 0.3))
sketch10.addConstraint(Sketcher.Constraint("Radius", 5, 0.2))
sketch10.addConstraint(Sketcher.Constraint("DistanceY", 4, 2, 4, 1, 11.0))
sketch10.addConstraint(Sketcher.Constraint("DistanceY", 7, 2, 7, 1, 2.0))
sketch10.addConstraint(Sketcher.Constraint("DistanceX", 0, 1, 0, 2, 1.5))
sketch10.addConstraint(Sketcher.Constraint("DistanceX", 2, 2, 2, 1, 2.3))
groove = body.newObject("PartDesign::Groove", "Groove")
groove.Profile = sketch10
groove.ReferenceAxis = (sketch10, ["V_Axis"])
groove.Angle = 360

# Sketch on XZ plane
sketch11 = body.newObject("Sketcher::SketchObject", "Sketch010")
sketch11.AttachmentSupport = (doc.getObject("XZ_Plane"), [""])
sketch11.MapMode = "FlatFace"
sketch11.addGeometry(Part.LineSegment(App.Vector(2, -1.5, 0), App.Vector(0, -1.5, 0)), False)
sketch11.addGeometry(Part.ArcOfCircle(Part.Circle(App.Vector(0, 0, 0), App.Vector(0, 0, 1), 1.5), math.radians(180), math.radians(270)), False)
sketch11.addGeometry(Part.LineSegment(App.Vector(-1.5, 0, 0), App.Vector(13.5, 0, 0)), False)
sketch11.addGeometry(Part.LineSegment(App.Vector(13.5, 0, 0), App.Vector(13.5, -2.3, 0)), False)
sketch11.addGeometry(Part.ArcOfCircle(Part.Circle(App.Vector(13.2, -2.3, 0), App.Vector(0, 0, 1), 0.3), math.radians(0), math.radians(90)), False)
sketch11.addGeometry(Part.LineSegment(App.Vector(13.2, -2, 0), App.Vector(2.2, -2, 0)), False)
sketch11.addGeometry(Part.ArcOfCircle(Part.Circle(App.Vector(2.2, -1.8, 0), App.Vector(0, 0, 1), 0.2), math.radians(-180), math.radians(-90)), False)
sketch11.addGeometry(Part.LineSegment(App.Vector(2, -1.8, 0), App.Vector(2, -1.5, 0)), False)
sketch11.addConstraint(Sketcher.Constraint("Tangent", 0, 2, 1, 2))
sketch11.addConstraint(Sketcher.Constraint("Coincident", 1, 1, 2, 1))
sketch11.addConstraint(Sketcher.Constraint("Coincident", 2, 2, 3, 1))
sketch11.addConstraint(Sketcher.Constraint("Tangent", 3, 2, 4, 1))
sketch11.addConstraint(Sketcher.Constraint("Tangent", 4, 2, 5, 1))
sketch11.addConstraint(Sketcher.Constraint("Tangent", 5, 2, 6, 2))
sketch11.addConstraint(Sketcher.Constraint("Tangent", 6, 1, 7, 1))
sketch11.addConstraint(Sketcher.Constraint("Coincident", 7, 2, 0, 1))
sketch11.addConstraint(Sketcher.Constraint("Horizontal", 0))
sketch11.addConstraint(Sketcher.Constraint("Horizontal", 2))
sketch11.addConstraint(Sketcher.Constraint("Vertical", 3))
sketch11.addConstraint(Sketcher.Constraint("Horizontal", 5))
sketch11.addConstraint(Sketcher.Constraint("Vertical", 7))
sketch11.addConstraint(Sketcher.Constraint("Coincident", 1, 3, -1, 1))
sketch11.addConstraint(Sketcher.Constraint("PointOnObject", 1, 1, -1))
sketch11.addConstraint(Sketcher.Constraint("Radius", 1, 1.5))
sketch11.addConstraint(Sketcher.Constraint("Radius", 4, 0.3))
sketch11.addConstraint(Sketcher.Constraint("Radius", 6, 0.2))
sketch11.addConstraint(Sketcher.Constraint("DistanceX", 0, 2, 0, 1, 2.0))
sketch11.addConstraint(Sketcher.Constraint("DistanceX", 2, 1, 2, 2, 15.0))
sketch11.addConstraint(Sketcher.Constraint("DistanceY", 3, 2, 3, 1, 2.3))
groove2 = body.newObject("PartDesign::Groove", "Groove001")
groove2.Profile = sketch11
groove2.ReferenceAxis = (sketch11, ["H_Axis"])
groove2.Angle = 360

doc.recompute()
